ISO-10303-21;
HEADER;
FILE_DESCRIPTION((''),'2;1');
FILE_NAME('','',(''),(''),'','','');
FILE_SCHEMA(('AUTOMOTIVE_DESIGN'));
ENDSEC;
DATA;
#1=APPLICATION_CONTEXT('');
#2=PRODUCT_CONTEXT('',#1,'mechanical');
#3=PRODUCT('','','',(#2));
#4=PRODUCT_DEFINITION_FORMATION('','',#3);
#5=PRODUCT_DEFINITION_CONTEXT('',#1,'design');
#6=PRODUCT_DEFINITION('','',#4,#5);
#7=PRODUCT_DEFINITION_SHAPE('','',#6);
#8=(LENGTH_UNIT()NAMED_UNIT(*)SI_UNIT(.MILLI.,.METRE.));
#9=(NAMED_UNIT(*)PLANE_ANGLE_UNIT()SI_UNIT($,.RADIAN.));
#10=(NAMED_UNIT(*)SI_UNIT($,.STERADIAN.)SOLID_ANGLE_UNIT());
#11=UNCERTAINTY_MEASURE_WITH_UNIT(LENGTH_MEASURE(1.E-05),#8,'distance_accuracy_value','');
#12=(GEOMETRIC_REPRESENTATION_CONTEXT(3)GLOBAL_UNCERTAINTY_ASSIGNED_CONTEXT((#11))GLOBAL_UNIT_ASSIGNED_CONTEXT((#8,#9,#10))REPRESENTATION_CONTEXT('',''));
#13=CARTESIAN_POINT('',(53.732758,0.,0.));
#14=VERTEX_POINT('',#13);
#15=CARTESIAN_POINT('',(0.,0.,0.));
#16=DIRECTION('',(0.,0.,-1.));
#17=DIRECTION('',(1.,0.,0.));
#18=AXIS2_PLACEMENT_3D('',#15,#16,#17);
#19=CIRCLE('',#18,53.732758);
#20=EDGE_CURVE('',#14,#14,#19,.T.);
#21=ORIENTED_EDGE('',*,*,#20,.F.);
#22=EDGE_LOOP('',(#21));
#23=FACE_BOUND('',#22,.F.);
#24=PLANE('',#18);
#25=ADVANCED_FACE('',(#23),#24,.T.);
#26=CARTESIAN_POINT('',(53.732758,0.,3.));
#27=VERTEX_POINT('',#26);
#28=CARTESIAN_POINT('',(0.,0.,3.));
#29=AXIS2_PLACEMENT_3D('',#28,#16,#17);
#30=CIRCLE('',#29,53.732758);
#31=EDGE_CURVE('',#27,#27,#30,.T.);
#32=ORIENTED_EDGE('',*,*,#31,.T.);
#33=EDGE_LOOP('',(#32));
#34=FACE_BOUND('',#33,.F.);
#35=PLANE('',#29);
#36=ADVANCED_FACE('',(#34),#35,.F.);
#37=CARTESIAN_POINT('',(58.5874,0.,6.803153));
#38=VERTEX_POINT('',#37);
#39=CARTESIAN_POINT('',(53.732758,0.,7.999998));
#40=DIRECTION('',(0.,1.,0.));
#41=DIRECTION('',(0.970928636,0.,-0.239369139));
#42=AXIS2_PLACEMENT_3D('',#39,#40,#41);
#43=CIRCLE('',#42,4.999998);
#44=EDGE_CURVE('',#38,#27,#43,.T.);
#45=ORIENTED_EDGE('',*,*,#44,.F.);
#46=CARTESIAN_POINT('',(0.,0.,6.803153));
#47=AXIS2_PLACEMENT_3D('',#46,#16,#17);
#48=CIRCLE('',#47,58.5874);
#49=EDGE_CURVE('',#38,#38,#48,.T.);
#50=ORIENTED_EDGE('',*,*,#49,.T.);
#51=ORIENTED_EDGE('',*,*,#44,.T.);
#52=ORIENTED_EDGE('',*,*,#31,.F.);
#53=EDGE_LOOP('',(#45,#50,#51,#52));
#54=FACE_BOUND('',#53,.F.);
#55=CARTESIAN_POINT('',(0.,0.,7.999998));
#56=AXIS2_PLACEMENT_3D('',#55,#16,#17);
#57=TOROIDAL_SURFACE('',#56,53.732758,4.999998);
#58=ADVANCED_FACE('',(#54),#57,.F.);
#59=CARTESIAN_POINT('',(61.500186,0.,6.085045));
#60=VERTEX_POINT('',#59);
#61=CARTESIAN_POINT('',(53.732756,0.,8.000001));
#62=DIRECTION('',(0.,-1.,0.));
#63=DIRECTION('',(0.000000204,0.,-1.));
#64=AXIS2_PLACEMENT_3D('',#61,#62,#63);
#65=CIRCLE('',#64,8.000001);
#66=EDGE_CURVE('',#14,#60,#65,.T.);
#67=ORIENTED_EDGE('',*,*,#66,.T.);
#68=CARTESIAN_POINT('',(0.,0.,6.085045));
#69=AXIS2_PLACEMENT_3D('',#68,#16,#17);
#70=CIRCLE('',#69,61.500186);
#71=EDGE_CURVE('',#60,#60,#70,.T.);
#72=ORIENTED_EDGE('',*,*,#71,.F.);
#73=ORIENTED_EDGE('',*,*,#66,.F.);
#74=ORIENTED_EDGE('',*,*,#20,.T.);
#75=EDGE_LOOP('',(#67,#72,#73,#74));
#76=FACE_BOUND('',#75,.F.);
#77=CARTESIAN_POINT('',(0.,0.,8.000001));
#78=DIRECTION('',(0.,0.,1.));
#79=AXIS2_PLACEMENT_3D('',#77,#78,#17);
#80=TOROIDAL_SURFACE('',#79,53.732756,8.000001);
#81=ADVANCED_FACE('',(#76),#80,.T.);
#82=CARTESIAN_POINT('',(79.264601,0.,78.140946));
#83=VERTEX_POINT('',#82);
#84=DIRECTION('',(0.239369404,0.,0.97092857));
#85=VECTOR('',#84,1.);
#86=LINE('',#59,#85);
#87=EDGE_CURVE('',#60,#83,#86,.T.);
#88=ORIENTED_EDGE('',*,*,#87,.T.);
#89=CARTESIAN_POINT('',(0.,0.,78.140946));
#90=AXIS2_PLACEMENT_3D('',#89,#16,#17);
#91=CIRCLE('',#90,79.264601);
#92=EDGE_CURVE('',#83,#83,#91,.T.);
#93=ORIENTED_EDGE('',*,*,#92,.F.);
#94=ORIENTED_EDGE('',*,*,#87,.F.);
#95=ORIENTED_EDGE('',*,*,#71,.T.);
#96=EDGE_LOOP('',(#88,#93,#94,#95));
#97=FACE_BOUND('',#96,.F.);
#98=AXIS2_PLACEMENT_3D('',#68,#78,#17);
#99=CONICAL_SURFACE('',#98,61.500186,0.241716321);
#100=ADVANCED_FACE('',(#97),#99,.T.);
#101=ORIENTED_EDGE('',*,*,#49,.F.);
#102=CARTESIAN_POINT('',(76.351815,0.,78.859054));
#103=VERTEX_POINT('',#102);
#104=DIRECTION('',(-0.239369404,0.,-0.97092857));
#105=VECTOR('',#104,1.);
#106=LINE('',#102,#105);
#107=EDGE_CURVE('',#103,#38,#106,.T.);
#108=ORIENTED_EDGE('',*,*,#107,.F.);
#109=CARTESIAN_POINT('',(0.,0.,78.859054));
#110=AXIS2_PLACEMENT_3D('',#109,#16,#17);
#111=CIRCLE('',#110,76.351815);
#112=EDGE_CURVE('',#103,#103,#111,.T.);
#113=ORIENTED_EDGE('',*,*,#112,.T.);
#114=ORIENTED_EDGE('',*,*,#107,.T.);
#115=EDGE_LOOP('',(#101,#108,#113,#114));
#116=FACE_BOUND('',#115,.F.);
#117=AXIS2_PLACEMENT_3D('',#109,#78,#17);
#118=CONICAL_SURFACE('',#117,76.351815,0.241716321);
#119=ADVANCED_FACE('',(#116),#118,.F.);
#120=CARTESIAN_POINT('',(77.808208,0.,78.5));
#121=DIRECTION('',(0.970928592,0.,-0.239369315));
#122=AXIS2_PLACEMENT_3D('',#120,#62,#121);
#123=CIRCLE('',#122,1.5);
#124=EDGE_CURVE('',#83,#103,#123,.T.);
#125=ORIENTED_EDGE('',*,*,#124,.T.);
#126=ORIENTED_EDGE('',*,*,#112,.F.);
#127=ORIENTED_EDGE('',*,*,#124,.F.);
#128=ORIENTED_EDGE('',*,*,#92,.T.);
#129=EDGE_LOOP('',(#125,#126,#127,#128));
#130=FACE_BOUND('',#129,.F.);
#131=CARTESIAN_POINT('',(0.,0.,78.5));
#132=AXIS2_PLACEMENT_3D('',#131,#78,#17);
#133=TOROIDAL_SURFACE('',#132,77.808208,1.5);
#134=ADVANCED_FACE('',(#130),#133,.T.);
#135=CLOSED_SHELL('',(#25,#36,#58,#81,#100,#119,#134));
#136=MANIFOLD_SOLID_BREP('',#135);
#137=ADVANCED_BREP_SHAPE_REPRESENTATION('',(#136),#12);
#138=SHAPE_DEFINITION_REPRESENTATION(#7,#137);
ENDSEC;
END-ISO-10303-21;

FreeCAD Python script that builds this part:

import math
import FreeCAD as App
import Part
import Sketcher
Q = App.Units.Quantity

doc = App.newDocument("Part")
body = doc.addObject("PartDesign::Body", "Body")

# Sketch on XZ plane
sketch1 = body.newObject("Sketcher::SketchObject", "Sketch")
sketch1.AttachmentSupport = (doc.getObject("XZ_Plane"), [""])
sketch1.MapMode = "FlatFace"
sketch1.addGeometry(Part.LineSegment(App.Vector(0, 3, 0), App.Vector(0, 0, 0)), False)
sketch1.addGeometry(Part.LineSegment(App.Vector(0, 0, 0), App.Vector(53.732758, 0, 0)), False)
sketch1.addGeometry(Part.ArcOfCircle(Part.Circle(App.Vector(53.732756, 8.000001, 0), App.Vector(0, 0, 1), 8.000001), math.radians(-89.999988), math.radians(-13.849331)), False)
sketch1.addGeometry(Part.LineSegment(App.Vector(61.500186, 6.085045, 0), App.Vector(79.264601, 78.140946, 0)), False)
sketch1.addGeometry(Part.ArcOfCircle(Part.Circle(App.Vector(77.808208, 78.5, 0), App.Vector(0, 0, 1), 1.5), math.radians(-13.84932), math.radians(166.15068)), False)
sketch1.addGeometry(Part.LineSegment(App.Vector(76.351815, 78.859054, 0), App.Vector(58.5874, 6.803153, 0)), False)
sketch1.addGeometry(Part.ArcOfCircle(Part.Circle(App.Vector(53.732758, 7.999998, 0), App.Vector(0, 0, 1), 4.999998), math.radians(-90.000006), math.radians(-13.849309)), False)
sketch1.addGeometry(Part.LineSegment(App.Vector(53.732758, 3, 0), App.Vector(0, 3, 0)), False)
sketch1.addConstraint(Sketcher.Constraint("Coincident", 0, 2, 1, 1))
sketch1.addConstraint(Sketcher.Constraint("Tangent", 1, 2, 2, 1))
sketch1.addConstraint(Sketcher.Constraint("Tangent", 2, 2, 3, 1))
sketch1.addConstraint(Sketcher.Constraint("Tangent", 3, 2, 4, 1))
sketch1.addConstraint(Sketcher.Constraint("Tangent", 4, 2, 5, 1))
sketch1.addConstraint(Sketcher.Constraint("Tangent", 5, 2, 6, 2))
sketch1.addConstraint(Sketcher.Constraint("Tangent", 6, 1, 7, 1))
sketch1.addConstraint(Sketcher.Constraint("Coincident", 7, 2, 0, 1))
sketch1.addConstraint(Sketcher.Constraint("Vertical", 0))
sketch1.addConstraint(Sketcher.Constraint("Horizontal", 1))
sketch1.addConstraint(Sketcher.Constraint("Horizontal", 7))
sketch1.addConstraint(Sketcher.Constraint("Coincident", 0, 2, -1, 1))
sketch1.addConstraint(Sketcher.Constraint("Coincident", 6, 3, 2, 3))
sketch1.addConstraint(Sketcher.Constraint("Parallel", 3, 5))
sketch1.addConstraint(Sketcher.Constraint("Radius", 2, Q("8.000001 mm")))
sketch1.addConstraint(Sketcher.Constraint("Radius", 6, Q("4.999998 mm")))
sketch1.addConstraint(Sketcher.Constraint("DistanceY", -1, 1, 4, 3, Q("78.5 mm")))
sketch1.addConstraint(Sketcher.Constraint("DistanceX", -1, 1, 3, 2, Q("79.264601 mm")))
sketch1.addConstraint(Sketcher.Constraint("DistanceX", -1, 1, 5, 2, Q("58.5874 mm")))
revolution = body.newObject("PartDesign::Revolution", "Revolution")
revolution.Profile = sketch1
revolution.ReferenceAxis = (sketch1, ["V_Axis"])
revolution.Angle = 360

doc.recompute()
